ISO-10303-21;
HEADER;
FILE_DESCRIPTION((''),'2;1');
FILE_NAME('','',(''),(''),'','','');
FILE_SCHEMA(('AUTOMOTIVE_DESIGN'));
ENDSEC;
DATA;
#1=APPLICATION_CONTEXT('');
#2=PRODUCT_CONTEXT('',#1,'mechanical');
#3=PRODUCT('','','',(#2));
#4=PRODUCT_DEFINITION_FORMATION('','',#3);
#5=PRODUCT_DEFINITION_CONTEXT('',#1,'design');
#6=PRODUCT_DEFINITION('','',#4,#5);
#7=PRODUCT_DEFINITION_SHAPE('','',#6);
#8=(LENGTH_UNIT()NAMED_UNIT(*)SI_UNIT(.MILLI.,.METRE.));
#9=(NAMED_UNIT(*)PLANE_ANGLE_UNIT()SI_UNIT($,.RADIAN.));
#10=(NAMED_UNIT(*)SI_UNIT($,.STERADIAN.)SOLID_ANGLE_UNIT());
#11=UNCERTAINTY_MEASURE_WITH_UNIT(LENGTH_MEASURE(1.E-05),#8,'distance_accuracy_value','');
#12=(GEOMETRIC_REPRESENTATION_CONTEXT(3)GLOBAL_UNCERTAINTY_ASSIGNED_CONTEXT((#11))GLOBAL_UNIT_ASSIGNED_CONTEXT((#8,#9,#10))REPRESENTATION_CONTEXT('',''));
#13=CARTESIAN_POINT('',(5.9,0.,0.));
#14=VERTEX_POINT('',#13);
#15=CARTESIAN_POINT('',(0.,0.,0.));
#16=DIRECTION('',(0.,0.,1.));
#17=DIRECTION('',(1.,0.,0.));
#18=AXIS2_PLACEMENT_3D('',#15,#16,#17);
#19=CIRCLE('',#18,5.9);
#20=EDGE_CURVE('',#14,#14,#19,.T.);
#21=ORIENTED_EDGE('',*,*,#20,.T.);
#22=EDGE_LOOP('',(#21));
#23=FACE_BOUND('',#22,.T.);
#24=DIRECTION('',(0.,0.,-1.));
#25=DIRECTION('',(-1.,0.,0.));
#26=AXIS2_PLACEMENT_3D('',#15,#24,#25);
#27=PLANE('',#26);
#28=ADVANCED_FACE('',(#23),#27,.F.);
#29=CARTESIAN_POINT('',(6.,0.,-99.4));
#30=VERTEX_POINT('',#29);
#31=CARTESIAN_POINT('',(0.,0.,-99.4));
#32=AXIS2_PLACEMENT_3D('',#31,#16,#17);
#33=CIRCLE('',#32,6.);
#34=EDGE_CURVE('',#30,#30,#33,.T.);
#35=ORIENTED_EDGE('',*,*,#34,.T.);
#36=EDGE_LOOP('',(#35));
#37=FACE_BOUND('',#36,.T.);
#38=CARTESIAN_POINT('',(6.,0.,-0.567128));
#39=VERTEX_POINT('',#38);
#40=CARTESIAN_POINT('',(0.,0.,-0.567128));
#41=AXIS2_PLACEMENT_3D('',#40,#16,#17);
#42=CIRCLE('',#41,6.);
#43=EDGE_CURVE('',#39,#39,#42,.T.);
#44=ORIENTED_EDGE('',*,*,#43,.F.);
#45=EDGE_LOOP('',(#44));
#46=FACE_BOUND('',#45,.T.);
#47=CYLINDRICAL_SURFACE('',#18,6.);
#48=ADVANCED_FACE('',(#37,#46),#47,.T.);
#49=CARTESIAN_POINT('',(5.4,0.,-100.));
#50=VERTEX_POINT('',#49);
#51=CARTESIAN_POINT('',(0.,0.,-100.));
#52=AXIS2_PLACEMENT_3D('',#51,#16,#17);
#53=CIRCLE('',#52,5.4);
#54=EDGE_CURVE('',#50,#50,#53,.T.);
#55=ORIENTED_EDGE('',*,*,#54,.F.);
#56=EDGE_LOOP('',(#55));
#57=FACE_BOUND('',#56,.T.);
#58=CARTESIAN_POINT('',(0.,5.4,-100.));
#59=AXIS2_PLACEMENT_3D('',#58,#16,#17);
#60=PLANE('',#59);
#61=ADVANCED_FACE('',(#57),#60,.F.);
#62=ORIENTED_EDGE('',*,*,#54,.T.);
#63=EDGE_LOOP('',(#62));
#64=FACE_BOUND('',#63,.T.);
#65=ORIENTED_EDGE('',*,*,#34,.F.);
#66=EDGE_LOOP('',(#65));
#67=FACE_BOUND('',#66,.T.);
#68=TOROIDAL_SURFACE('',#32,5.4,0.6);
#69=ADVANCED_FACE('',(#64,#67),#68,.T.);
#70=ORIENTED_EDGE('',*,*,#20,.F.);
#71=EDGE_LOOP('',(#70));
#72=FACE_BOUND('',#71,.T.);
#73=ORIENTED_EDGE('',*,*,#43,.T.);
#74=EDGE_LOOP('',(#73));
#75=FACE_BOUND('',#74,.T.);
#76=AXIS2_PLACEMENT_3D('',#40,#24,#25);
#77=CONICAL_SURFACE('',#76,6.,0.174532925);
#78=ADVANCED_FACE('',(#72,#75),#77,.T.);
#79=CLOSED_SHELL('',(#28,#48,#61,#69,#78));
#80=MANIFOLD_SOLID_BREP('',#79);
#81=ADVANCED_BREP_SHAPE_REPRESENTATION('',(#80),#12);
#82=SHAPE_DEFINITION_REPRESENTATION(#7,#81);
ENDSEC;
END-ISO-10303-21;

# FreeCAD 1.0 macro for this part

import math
import FreeCAD as App
import Part
import Sketcher

V = App.Vector
Q = App.Units.Quantity

doc = App.newDocument("Part")
body = doc.addObject("PartDesign::Body", "Body")

# Sketch on YZ plane
sketch1 = body.newObject("Sketcher::SketchObject", "Sketch")
sketch1.AttachmentSupport = (doc.getObject("YZ_Plane"), [""])
sketch1.MapMode = "FlatFace"
sketch1.addGeometry(Part.LineSegment(V(5.9, 0, 0), V(0, 0, 0)), False)
sketch1.addGeometry(Part.LineSegment(V(0, 0, 0), V(0, -100, 0)), False)
sketch1.addGeometry(Part.LineSegment(V(0, -100, 0), V(5.4, -100, 0)), False)
sketch1.addGeometry(Part.ArcOfCircle(Part.Circle(V(5.4, -99.4, 0), V(0, 0, 1), 0.6), math.radians(-90), math.radians(0)), False)
sketch1.addGeometry(Part.LineSegment(V(6, -99.4, 0), V(6, -0.567128, 0)), False)
sketch1.addGeometry(Part.LineSegment(V(6, -0.567128, 0), V(5.9, 0, 0)), False)
sketch1.addConstraint(Sketcher.Constraint("Coincident", 0, 2, 1, 1))
sketch1.addConstraint(Sketcher.Constraint("Coincident", 1, 2, 2, 1))
sketch1.addConstraint(Sketcher.Constraint("Tangent", 2, 2, 3, 1))
sketch1.addConstraint(Sketcher.Constraint("Tangent", 3, 2, 4, 1))
sketch1.addConstraint(Sketcher.Constraint("Coincident", 4, 2, 5, 1))
sketch1.addConstraint(Sketcher.Constraint("Coincident", 5, 2, 0, 1))
sketch1.addConstraint(Sketcher.Constraint("Horizontal", 0))
sketch1.addConstraint(Sketcher.Constraint("Vertical", 1))
sketch1.addConstraint(Sketcher.Constraint("Horizontal", 2))
sketch1.addConstraint(Sketcher.Constraint("Vertical", 4))
sketch1.addConstraint(Sketcher.Constraint("Coincident", 0, 2, -1, 1))
sketch1.addConstraint(Sketcher.Constraint("Radius", 3, Q("0.6 mm")))
sketch1.addConstraint(Sketcher.Constraint("DistanceY", 1, 2, 1, 1, Q("100 mm")))
sketch1.addConstraint(Sketcher.Constraint("Angle", 5, Q("100 deg")))
sketch1.addConstraint(Sketcher.Constraint("DistanceX", 0, 2, 0, 1, Q("5.9 mm")))
sketch1.addConstraint(Sketcher.Constraint("DistanceX", 2, 1, 2, 2, Q("5.4 mm")))
revolution = body.newObject("PartDesign::Revolution", "Revolution")
revolution.Profile = sketch1
revolution.ReferenceAxis = (sketch1, ["V_Axis"])
revolution.Angle = 360

doc.recompute()
